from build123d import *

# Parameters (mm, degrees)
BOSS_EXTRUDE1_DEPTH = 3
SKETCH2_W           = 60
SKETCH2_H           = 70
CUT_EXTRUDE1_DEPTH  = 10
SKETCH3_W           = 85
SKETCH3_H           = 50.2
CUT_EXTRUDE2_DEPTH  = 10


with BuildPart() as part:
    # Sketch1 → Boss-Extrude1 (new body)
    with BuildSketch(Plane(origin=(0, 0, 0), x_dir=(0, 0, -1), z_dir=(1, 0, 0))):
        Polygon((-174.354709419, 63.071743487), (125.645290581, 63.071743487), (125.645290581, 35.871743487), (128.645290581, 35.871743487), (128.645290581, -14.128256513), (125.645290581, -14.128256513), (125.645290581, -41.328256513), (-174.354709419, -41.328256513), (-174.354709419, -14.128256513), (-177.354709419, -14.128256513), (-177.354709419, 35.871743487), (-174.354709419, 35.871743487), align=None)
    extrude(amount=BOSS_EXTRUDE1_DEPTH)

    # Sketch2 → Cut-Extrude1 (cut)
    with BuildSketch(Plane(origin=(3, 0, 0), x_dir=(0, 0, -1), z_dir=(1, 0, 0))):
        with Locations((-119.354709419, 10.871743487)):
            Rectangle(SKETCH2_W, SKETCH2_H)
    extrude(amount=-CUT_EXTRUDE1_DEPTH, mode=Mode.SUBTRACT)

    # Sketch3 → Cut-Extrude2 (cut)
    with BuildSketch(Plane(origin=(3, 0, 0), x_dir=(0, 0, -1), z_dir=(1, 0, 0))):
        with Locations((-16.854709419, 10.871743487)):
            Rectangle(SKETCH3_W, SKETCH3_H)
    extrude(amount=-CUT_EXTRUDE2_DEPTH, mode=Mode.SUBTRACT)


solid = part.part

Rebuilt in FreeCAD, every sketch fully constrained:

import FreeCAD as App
import Part
import Sketcher

V = App.Vector
Q = App.Units.Quantity


def add_polygon(sketch, points):
    """Adds a closed chain of lines whose ends are joined by coincident constraints."""
    first, n = sketch.GeometryCount, len(points)
    for a, b in zip(points, points[1:] + points[:1]):
        sketch.addGeometry(Part.LineSegment(App.Vector(*a, 0), App.Vector(*b, 0)), False)
    for i in range(n):
        sketch.addConstraint(Sketcher.Constraint("Coincident", first + i, 2, first + (i + 1) % n, 1))

doc = App.newDocument("Part")
body = doc.addObject("PartDesign::Body", "Body")

sketch1 = body.newObject("Sketcher::SketchObject", "Sketch")
sketch1.AttachmentSupport = (doc.getObject("YZ_Plane"), [""])
sketch1.MapMode = "FlatFace"
add_polygon(sketch1, [(63.1, -125.6), (63.1, 174.4), (35.9, 174.4), (35.9, 177.4), (-14.1, 177.4), (-14.1, 174.4), (-41.3, 174.4), (-41.3, -125.6), (-14.1, -125.6), (-14.1, -128.6), (35.9, -128.6), (35.9, -125.6)])
sketch1.addConstraint(Sketcher.Constraint("Vertical", 0))
sketch1.addConstraint(Sketcher.Constraint("Horizontal", 1))
sketch1.addConstraint(Sketcher.Constraint("Vertical", 2))
sketch1.addConstraint(Sketcher.Constraint("Horizontal", 3))
sketch1.addConstraint(Sketcher.Constraint("Vertical", 4))
sketch1.addConstraint(Sketcher.Constraint("Horizontal", 5))
sketch1.addConstraint(Sketcher.Constraint("Vertical", 6))
sketch1.addConstraint(Sketcher.Constraint("Horizontal", 7))
sketch1.addConstraint(Sketcher.Constraint("Vertical", 8))
sketch1.addConstraint(Sketcher.Constraint("Horizontal", 9))
sketch1.addConstraint(Sketcher.Constraint("Vertical", 10))
sketch1.addConstraint(Sketcher.Constraint("Horizontal", 11))
sketch1.addConstraint(Sketcher.Constraint("Horizontal", 1, 2, 4, 2))
sketch1.addConstraint(Sketcher.Constraint("Horizontal", 7, 2, 10, 2))
sketch1.addConstraint(Sketcher.Constraint("Vertical", 4, 2, 7, 2))
sketch1.addConstraint(Sketcher.Constraint("Vertical", 2, 2, 9, 2))
sketch1.addConstraint(Sketcher.Constraint("Equal", 1, 5))
sketch1.addConstraint(Sketcher.Constraint("Equal", 4, 8))
sketch1.addConstraint(Sketcher.Constraint("DistanceX", 3, 2, 3, 1, Q("50 mm")))
sketch1.addConstraint(Sketcher.Constraint("DistanceY", 0, 1, 0, 2, Q("300 mm")))
sketch1.addConstraint(Sketcher.Constraint("DistanceY", 2, 1, 2, 2, Q("3 mm")))
sketch1.addConstraint(Sketcher.Constraint("DistanceX", 1, 2, 1, 1, Q("27.2 mm")))
sketch1.addConstraint(Sketcher.Constraint("DistanceY", -1, 1, 0, 2, Q("174.354709 mm")))
sketch1.addConstraint(Sketcher.Constraint("DistanceX", -1, 1, 0, 2, Q("63.071743 mm")))
pad1 = body.newObject("PartDesign::Pad", "Pad")
pad1.Profile = sketch1
pad1.Length = 3

sketch2 = body.newObject("Sketcher::SketchObject", "Sketch001")
sketch2.AttachmentSupport = (doc.getObject("YZ_Plane"), [""])
sketch2.MapMode = "FlatFace"
sketch2.AttachmentOffset = App.Placement(V(0, 0, 3), App.Rotation())
add_polygon(sketch2, [(46, 149), (-24, 149), (-24, 89), (46, 89)])
sketch2.addConstraint(Sketcher.Constraint("Horizontal", 0))
sketch2.addConstraint(Sketcher.Constraint("Vertical", 1))
sketch2.addConstraint(Sketcher.Constraint("Horizontal", 2))
sketch2.addConstraint(Sketcher.Constraint("Vertical", 3))
sketch2.addConstraint(Sketcher.Constraint("DistanceX", 0, 2, 0, 1, Q("70 mm")))
sketch2.addConstraint(Sketcher.Constraint("DistanceY", 1, 2, 1, 1, Q("60 mm")))
sketch2.addConstraint(Sketcher.Constraint("DistanceY", -1, 1, 0, 2, Q("149.354709 mm")))
sketch2.addConstraint(Sketcher.Constraint("DistanceX", 0, 2, -1, 1, Q("24.128257 mm")))
pocket1 = body.newObject("PartDesign::Pocket", "Pocket")
pocket1.Profile = sketch2
pocket1.Length = 10

sketch3 = body.newObject("Sketcher::SketchObject", "Sketch002")
sketch3.AttachmentSupport = (doc.getObject("YZ_Plane"), [""])
sketch3.MapMode = "FlatFace"
sketch3.AttachmentOffset = App.Placement(V(0, 0, 3), App.Rotation())
add_polygon(sketch3, [(36, 59), (-14, 59), (-14, -26), (36, -26)])
sketch3.addConstraint(Sketcher.Constraint("Horizontal", 0))
sketch3.addConstraint(Sketcher.Constraint("Vertical", 1))
sketch3.addConstraint(Sketcher.Constraint("Horizontal", 2))
sketch3.addConstraint(Sketcher.Constraint("Vertical", 3))
sketch3.addConstraint(Sketcher.Constraint("DistanceY", 1, 2, 1, 1, Q("85 mm")))
sketch3.addConstraint(Sketcher.Constraint("DistanceX", 0, 2, 0, 1, Q("50.2 mm")))
sketch3.addConstraint(Sketcher.Constraint("DistanceY", -1, 1, 0, 2, Q("59.354709 mm")))
sketch3.addConstraint(Sketcher.Constraint("DistanceX", 0, 2, -1, 1, Q("14.228257 mm")))
pocket2 = body.newObject("PartDesign::Pocket", "Pocket001")
pocket2.Profile = sketch3
pocket2.Length = 10

doc.recompute()
